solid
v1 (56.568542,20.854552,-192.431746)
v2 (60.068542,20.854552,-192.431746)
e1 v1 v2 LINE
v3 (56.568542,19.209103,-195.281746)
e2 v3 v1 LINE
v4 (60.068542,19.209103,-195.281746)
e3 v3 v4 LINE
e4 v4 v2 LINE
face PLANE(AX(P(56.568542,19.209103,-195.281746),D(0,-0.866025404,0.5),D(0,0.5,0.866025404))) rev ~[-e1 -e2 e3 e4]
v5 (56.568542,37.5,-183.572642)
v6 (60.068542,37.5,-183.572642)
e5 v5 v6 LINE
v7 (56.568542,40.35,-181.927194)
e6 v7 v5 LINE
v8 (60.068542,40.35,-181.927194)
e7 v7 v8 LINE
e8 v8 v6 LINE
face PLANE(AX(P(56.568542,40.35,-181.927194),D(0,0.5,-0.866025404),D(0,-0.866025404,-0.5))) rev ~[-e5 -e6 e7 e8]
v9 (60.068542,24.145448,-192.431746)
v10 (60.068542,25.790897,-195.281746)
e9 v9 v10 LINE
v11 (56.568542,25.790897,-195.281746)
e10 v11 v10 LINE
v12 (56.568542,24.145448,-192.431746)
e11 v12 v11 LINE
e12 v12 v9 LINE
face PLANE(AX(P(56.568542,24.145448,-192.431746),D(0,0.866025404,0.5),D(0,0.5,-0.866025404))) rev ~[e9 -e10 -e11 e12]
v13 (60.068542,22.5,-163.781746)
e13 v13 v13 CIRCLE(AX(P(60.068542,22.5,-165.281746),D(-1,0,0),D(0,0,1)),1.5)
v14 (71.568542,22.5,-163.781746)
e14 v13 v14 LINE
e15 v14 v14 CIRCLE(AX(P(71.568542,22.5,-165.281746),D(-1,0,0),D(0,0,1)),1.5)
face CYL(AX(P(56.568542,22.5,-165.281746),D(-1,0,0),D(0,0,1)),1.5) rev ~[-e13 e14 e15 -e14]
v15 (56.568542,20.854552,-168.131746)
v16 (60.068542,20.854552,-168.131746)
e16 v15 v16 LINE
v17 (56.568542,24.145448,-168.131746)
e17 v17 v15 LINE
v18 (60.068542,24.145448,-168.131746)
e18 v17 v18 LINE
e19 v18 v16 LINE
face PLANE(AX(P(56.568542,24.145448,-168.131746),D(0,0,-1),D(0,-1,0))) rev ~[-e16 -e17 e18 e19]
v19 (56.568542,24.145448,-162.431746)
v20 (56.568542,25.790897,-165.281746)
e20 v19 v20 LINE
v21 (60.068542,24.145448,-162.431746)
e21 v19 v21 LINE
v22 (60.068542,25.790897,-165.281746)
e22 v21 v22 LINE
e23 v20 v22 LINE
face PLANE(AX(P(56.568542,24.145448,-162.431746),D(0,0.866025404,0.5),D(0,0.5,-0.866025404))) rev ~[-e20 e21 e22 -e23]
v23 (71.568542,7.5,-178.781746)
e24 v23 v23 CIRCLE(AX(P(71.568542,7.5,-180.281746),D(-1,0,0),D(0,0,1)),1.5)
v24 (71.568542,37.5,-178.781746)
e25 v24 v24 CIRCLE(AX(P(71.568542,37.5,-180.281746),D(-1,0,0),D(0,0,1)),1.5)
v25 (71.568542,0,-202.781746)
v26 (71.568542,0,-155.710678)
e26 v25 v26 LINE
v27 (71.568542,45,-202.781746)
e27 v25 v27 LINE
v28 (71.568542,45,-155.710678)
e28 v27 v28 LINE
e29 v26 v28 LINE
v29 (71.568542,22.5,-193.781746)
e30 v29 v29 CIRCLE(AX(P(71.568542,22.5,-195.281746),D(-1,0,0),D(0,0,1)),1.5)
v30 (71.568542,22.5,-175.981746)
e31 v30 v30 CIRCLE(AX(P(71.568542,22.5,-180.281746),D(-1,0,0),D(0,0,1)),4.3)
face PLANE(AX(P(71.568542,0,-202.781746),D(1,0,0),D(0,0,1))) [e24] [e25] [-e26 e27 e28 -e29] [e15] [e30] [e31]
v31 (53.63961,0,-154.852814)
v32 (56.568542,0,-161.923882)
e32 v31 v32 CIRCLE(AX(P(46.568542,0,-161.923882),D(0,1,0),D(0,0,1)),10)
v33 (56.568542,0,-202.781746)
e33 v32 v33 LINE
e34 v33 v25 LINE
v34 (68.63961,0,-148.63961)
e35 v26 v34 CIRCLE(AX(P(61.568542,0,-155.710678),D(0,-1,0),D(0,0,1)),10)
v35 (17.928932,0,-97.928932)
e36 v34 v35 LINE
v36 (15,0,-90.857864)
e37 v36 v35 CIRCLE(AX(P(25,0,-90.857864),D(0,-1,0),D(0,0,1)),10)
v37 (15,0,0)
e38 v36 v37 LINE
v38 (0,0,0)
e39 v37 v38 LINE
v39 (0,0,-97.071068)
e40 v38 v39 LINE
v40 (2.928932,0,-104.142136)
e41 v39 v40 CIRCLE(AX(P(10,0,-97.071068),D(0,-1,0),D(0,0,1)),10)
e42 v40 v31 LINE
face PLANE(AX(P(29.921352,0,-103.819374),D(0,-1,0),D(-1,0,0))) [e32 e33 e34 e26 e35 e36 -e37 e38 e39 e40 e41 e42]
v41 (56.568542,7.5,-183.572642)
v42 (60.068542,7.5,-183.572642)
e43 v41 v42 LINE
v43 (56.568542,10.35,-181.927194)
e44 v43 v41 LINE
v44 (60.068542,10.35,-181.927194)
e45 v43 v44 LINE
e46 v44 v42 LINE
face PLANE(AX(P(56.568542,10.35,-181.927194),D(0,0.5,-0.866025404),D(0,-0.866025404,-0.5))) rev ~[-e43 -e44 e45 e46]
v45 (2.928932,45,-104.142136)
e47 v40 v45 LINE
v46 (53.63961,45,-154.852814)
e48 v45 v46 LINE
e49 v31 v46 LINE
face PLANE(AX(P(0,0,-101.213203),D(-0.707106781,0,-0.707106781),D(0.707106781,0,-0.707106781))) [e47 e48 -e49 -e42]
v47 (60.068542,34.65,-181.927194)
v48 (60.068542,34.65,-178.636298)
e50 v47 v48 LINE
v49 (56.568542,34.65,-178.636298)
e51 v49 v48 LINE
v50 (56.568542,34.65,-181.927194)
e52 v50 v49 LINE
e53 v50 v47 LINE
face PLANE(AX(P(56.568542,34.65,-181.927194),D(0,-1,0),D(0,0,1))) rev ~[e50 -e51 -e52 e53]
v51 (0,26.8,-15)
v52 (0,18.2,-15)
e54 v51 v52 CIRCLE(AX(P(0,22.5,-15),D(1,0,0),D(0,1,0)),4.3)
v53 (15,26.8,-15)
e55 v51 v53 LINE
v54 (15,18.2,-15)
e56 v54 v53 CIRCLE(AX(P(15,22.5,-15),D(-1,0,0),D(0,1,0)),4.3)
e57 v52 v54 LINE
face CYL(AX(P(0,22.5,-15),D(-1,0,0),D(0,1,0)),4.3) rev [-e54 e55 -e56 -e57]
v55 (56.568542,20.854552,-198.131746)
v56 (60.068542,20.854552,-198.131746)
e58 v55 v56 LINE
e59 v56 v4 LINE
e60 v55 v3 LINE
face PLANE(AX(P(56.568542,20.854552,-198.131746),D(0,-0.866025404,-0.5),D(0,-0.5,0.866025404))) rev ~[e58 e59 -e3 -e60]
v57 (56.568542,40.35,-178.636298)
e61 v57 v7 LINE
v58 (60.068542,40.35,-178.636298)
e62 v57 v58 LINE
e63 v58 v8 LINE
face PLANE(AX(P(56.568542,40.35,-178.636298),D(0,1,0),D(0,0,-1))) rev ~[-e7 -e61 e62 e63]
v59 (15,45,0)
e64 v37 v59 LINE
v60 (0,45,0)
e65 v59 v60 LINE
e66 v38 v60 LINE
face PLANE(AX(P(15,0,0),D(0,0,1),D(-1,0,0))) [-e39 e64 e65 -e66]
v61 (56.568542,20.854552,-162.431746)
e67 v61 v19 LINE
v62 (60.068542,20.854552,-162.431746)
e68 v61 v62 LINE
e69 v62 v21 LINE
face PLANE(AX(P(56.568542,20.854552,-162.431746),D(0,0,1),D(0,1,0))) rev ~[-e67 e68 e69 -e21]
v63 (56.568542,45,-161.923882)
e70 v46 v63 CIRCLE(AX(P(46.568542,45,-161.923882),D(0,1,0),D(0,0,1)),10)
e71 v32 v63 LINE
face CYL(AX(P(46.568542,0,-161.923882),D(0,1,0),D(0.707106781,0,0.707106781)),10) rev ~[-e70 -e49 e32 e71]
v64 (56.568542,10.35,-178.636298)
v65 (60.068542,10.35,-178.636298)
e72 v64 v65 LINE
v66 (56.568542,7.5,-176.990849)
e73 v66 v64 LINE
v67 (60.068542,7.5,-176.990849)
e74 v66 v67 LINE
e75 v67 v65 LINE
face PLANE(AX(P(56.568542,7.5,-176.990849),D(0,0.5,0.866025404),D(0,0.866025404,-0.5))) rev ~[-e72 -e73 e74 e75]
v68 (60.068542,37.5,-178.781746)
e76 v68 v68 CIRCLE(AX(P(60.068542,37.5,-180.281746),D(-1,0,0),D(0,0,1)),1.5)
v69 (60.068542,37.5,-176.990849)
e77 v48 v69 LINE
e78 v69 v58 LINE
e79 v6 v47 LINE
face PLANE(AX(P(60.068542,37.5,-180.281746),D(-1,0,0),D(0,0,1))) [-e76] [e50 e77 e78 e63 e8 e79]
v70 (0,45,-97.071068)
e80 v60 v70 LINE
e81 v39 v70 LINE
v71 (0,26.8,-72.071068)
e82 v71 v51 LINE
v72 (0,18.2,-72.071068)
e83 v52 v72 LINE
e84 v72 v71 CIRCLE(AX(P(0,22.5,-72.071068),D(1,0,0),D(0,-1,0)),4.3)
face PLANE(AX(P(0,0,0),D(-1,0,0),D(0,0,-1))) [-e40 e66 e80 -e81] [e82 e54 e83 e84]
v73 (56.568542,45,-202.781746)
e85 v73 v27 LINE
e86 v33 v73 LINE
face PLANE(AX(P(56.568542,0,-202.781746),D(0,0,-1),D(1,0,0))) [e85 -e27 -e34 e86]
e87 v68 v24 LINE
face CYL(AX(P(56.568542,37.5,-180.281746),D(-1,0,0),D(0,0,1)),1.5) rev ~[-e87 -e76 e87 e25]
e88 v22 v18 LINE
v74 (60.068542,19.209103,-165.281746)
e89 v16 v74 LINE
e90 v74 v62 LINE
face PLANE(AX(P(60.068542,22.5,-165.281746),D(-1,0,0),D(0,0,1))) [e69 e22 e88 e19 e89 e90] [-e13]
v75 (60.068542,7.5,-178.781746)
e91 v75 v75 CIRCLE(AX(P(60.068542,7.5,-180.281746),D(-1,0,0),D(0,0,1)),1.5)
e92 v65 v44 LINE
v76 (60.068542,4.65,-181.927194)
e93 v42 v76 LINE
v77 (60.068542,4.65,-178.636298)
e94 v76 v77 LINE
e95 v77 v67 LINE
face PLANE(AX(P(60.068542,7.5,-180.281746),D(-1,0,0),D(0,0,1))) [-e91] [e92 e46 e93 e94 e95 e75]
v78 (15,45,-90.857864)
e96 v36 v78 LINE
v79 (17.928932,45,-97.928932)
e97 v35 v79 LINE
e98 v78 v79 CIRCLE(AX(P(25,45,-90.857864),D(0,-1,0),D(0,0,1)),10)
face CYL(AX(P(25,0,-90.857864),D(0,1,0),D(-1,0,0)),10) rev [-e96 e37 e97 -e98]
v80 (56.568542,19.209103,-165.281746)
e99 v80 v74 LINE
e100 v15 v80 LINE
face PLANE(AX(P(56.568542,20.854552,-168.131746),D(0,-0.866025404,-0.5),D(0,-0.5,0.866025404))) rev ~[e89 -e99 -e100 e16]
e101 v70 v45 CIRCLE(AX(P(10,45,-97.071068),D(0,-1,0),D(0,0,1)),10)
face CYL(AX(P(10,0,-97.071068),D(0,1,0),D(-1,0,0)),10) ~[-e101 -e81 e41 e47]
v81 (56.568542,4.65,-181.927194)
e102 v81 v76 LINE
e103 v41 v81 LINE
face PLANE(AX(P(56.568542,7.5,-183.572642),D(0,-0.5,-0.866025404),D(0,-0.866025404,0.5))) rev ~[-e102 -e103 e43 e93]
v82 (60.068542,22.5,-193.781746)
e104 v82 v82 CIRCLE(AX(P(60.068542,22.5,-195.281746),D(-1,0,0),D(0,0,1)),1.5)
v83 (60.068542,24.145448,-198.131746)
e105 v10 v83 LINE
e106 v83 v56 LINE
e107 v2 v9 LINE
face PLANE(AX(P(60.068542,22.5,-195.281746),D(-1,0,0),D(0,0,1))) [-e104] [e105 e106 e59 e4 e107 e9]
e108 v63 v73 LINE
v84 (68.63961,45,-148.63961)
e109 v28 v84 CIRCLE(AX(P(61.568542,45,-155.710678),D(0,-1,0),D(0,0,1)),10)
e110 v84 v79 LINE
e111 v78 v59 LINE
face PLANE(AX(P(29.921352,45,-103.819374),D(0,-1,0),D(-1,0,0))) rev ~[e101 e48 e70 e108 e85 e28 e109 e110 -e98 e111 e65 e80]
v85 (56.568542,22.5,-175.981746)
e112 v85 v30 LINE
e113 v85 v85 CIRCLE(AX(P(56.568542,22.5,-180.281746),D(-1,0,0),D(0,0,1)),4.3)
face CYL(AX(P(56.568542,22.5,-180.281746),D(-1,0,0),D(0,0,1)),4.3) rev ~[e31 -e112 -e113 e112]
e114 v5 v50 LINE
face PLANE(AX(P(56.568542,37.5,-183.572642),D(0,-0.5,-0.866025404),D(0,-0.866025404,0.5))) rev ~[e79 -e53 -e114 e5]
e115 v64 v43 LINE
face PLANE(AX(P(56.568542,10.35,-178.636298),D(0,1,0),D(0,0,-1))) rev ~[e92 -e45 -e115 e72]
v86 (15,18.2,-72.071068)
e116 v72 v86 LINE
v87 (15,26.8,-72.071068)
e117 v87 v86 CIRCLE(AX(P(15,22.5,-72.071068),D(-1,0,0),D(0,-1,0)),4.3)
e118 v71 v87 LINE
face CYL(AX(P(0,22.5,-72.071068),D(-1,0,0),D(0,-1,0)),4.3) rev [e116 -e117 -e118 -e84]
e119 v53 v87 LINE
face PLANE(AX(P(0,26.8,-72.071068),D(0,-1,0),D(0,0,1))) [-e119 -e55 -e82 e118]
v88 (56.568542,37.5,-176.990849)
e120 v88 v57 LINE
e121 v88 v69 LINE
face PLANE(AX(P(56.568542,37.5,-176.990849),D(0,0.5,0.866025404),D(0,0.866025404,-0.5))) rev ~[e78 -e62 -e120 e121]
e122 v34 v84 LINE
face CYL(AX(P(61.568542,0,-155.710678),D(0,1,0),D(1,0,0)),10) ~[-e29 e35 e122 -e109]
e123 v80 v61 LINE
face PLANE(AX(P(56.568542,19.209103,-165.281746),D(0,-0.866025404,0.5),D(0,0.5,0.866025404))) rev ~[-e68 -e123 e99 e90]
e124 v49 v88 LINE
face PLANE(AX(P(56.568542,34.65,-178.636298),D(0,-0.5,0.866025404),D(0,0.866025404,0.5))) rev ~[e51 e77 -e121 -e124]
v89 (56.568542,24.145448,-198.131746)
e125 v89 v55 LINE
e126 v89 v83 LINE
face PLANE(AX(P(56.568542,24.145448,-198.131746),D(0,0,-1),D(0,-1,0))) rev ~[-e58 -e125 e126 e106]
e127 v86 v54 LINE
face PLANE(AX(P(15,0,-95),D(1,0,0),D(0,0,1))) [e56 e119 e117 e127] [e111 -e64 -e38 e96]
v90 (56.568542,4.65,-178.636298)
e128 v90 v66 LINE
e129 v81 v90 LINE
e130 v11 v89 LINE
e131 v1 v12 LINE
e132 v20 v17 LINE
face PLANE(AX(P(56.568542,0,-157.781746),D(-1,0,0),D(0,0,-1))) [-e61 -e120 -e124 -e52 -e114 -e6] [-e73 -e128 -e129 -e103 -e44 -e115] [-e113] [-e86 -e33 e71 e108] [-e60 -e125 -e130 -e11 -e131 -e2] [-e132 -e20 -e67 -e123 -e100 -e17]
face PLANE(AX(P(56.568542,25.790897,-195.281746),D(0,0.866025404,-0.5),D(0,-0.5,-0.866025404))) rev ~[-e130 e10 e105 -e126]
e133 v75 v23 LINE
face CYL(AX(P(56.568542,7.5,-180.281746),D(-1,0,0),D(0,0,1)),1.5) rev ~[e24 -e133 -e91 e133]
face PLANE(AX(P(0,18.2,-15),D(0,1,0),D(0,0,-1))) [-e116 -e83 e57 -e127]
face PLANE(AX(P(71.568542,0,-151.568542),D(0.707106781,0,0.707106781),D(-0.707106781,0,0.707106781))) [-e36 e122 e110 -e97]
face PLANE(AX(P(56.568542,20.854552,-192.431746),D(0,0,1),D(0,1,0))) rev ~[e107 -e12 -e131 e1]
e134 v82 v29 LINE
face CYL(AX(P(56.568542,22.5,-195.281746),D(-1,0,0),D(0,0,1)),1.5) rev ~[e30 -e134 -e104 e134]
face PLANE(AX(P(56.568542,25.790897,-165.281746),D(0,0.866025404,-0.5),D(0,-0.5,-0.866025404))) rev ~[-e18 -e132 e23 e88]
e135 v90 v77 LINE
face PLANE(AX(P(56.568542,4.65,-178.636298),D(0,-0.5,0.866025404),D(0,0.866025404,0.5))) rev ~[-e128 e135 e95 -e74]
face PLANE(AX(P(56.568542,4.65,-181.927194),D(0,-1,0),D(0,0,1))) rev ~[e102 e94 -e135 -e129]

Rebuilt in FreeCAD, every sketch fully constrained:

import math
import FreeCAD as App
import Part
import Sketcher
from FreeCAD import Vector
Q = App.Units.Quantity


def edges_at(feature, points):
    """Names of the edges that pass closest to the given points."""
    edges = feature.Shape.Edges
    near = lambda p: min(range(len(edges)), key=lambda i: edges[i].distToShape(Part.Vertex(*p))[0])
    return sorted({f"Edge{near(p) + 1}" for p in points})


def add_polygon(sketch, points):
    """Adds a closed chain of lines whose ends are joined by coincident constraints."""
    first, n = sketch.GeometryCount, len(points)
    for a, b in zip(points, points[1:] + points[:1]):
        sketch.addGeometry(Part.LineSegment(App.Vector(*a, 0), App.Vector(*b, 0)), False)
    for i in range(n):
        sketch.addConstraint(Sketcher.Constraint("Coincident", first + i, 2, first + (i + 1) % n, 1))

doc = App.newDocument("Part")
body = doc.addObject("PartDesign::Body", "Body")

sketch1 = body.newObject("Sketcher::SketchObject", "Sketch")
sketch1.AttachmentSupport = (doc.getObject("XZ_Plane"), [""])
sketch1.MapMode = "FlatFace"
add_polygon(sketch1, [(0, -101), (0, 0), (15, 0), (15, -95), (72, -152), (72, -203), (57, -203), (57, -158)])
sketch1.addConstraint(Sketcher.Constraint("Vertical", 0))
sketch1.addConstraint(Sketcher.Constraint("Horizontal", 1))
sketch1.addConstraint(Sketcher.Constraint("Vertical", 2))
sketch1.addConstraint(Sketcher.Constraint("Vertical", 4))
sketch1.addConstraint(Sketcher.Constraint("Horizontal", 5))
sketch1.addConstraint(Sketcher.Constraint("Vertical", 6))
sketch1.addConstraint(Sketcher.Constraint("Coincident", 0, 2, -1, 1))
sketch1.addConstraint(Sketcher.Constraint("Parallel", 3, 7))
sketch1.addConstraint(Sketcher.Constraint("Equal", 1, 5))
sketch1.addConstraint(Sketcher.Constraint("DistanceX", 1, 1, 1, 2, Q("15 mm")))
sketch1.addConstraint(Sketcher.Constraint("DistanceY", 2, 2, 2, 1, Q("95 mm")))
sketch1.addConstraint(Sketcher.Constraint("DistanceY", 6, 1, 6, 2, Q("45 mm")))
sketch1.addConstraint(Sketcher.Constraint("Angle", 3, Q("-45 deg")))
sketch1.addConstraint(Sketcher.Constraint("Distance", 3, Q("80 mm")))
sketch1.addConstraint(Sketcher.Constraint("DistanceY", 0, 1, 0, 2, Q("101.213203 mm")))
pad1 = body.newObject("PartDesign::Pad", "Pad")
pad1.Profile = sketch1
pad1.Length = 45
pad1.Reversed = True

sketch2 = body.newObject("Sketcher::SketchObject", "Sketch001")
sketch2.AttachmentSupport = (doc.getObject("YZ_Plane"), [""])
sketch2.MapMode = "FlatFace"
sketch2.AttachmentOffset = App.Placement(Vector(0, 0, 56.568542), App.Rotation())
sketch2.addGeometry(Part.Circle(Vector(22.5, -180.3, 0), Vector(0, 0, 1), 4.3), False)
sketch2.addConstraint(Sketcher.Constraint("Diameter", 0, Q("8.6 mm")))
sketch2.addConstraint(Sketcher.Constraint("DistanceX", -1, 1, 0, 3, Q("22.5 mm")))
sketch2.addConstraint(Sketcher.Constraint("DistanceY", 0, 3, -1, 1, Q("180.281746 mm")))
pocket1 = body.newObject("PartDesign::Pocket", "Pocket")
pocket1.Profile = sketch2
pocket1.Type = "UpToFirst"
pocket1.Reversed = True

sketch3 = body.newObject("Sketcher::SketchObject", "Sketch002")
sketch3.AttachmentSupport = (doc.getObject("YZ_Plane"), [""])
sketch3.MapMode = "FlatFace"
sketch3.AttachmentOffset = App.Placement(Vector(0, 0, 56.568542), App.Rotation())
sketch3.addGeometry(Part.Circle(Vector(37.5, -180.3, 0), Vector(0, 0, 1), 1.5), False)
sketch3.addConstraint(Sketcher.Constraint("Diameter", 0, Q("3 mm")))
sketch3.addConstraint(Sketcher.Constraint("DistanceX", -1, 1, 0, 3, Q("37.5 mm")))
sketch3.addConstraint(Sketcher.Constraint("DistanceY", 0, 3, -1, 1, Q("180.281746 mm")))
pocket2 = body.newObject("PartDesign::Pocket", "Pocket001")
pocket2.Profile = sketch3
pocket2.Type = "UpToFirst"
pocket2.Reversed = True

sketch4 = body.newObject("Sketcher::SketchObject", "Sketch003")
sketch4.AttachmentSupport = (doc.getObject("YZ_Plane"), [""])
sketch4.MapMode = "FlatFace"
sketch4.AttachmentOffset = App.Placement(Vector(0, 0, 56.568542), App.Rotation())
sketch4.addGeometry(Part.Circle(Vector(22.5, -165.3, 0), Vector(0, 0, 1), 1.5), False)
sketch4.addConstraint(Sketcher.Constraint("Diameter", 0, Q("3 mm")))
sketch4.addConstraint(Sketcher.Constraint("DistanceX", -1, 1, 0, 3, Q("22.5 mm")))
sketch4.addConstraint(Sketcher.Constraint("DistanceY", 0, 3, -1, 1, Q("165.281746 mm")))
pocket3 = body.newObject("PartDesign::Pocket", "Pocket002")
pocket3.Profile = sketch4
pocket3.Type = "UpToFirst"
pocket3.Reversed = True

sketch5 = body.newObject("Sketcher::SketchObject", "Sketch004")
sketch5.AttachmentSupport = (doc.getObject("YZ_Plane"), [""])
sketch5.MapMode = "FlatFace"
sketch5.AttachmentOffset = App.Placement(Vector(0, 0, 56.568542), App.Rotation())
sketch5.addGeometry(Part.Circle(Vector(7.5, -180.3, 0), Vector(0, 0, 1), 1.5), False)
sketch5.addConstraint(Sketcher.Constraint("Diameter", 0, Q("3 mm")))
sketch5.addConstraint(Sketcher.Constraint("DistanceX", -1, 1, 0, 3, Q("7.5 mm")))
sketch5.addConstraint(Sketcher.Constraint("DistanceY", 0, 3, -1, 1, Q("180.281746 mm")))
pocket4 = body.newObject("PartDesign::Pocket", "Pocket003")
pocket4.Profile = sketch5
pocket4.Type = "UpToFirst"
pocket4.Reversed = True

sketch6 = body.newObject("Sketcher::SketchObject", "Sketch005")
sketch6.AttachmentSupport = (doc.getObject("YZ_Plane"), [""])
sketch6.MapMode = "FlatFace"
sketch6.AttachmentOffset = App.Placement(Vector(0, 0, 56.568542), App.Rotation())
sketch6.addGeometry(Part.Circle(Vector(22.5, -195.3, 0), Vector(0, 0, 1), 1.5), False)
sketch6.addConstraint(Sketcher.Constraint("Diameter", 0, Q("3 mm")))
sketch6.addConstraint(Sketcher.Constraint("DistanceX", -1, 1, 0, 3, Q("22.5 mm")))
sketch6.addConstraint(Sketcher.Constraint("DistanceY", 0, 3, -1, 1, Q("195.281746 mm")))
pocket5 = body.newObject("PartDesign::Pocket", "Pocket004")
pocket5.Profile = sketch6
pocket5.Type = "UpToFirst"
pocket5.Reversed = True

sketch7 = body.newObject("Sketcher::SketchObject", "Sketch006")
sketch7.AttachmentSupport = (doc.getObject("YZ_Plane"), [""])
sketch7.MapMode = "FlatFace"
sketch7.AttachmentOffset = App.Placement(Vector(0, 0, 56.568542), App.Rotation())
add_polygon(sketch7, [(20.9, -162.4), (24.1, -162.4), (25.8, -165.3), (24.1, -168.1), (20.9, -168.1), (19.2, -165.3)])
add_polygon(sketch7, [(40.4, -178.6), (40.4, -181.9), (37.5, -183.6), (34.6, -181.9), (34.6, -178.6), (37.5, -177)])
add_polygon(sketch7, [(4.7, -181.9), (4.7, -178.6), (7.5, -177), (10.3, -178.6), (10.3, -181.9), (7.5, -183.6)])
add_polygon(sketch7, [(24.1, -198.1), (20.9, -198.1), (19.2, -195.3), (20.9, -192.4), (24.1, -192.4), (25.8, -195.3)])
sketch7.addConstraint(Sketcher.Constraint("Horizontal", 0))
sketch7.addConstraint(Sketcher.Constraint("Horizontal", 3))
sketch7.addConstraint(Sketcher.Constraint("Vertical", 6))
sketch7.addConstraint(Sketcher.Constraint("Vertical", 9))
sketch7.addConstraint(Sketcher.Constraint("Vertical", 12))
sketch7.addConstraint(Sketcher.Constraint("Vertical", 15))
sketch7.addConstraint(Sketcher.Constraint("Horizontal", 18))
sketch7.addConstraint(Sketcher.Constraint("Horizontal", 21))
sketch7.addConstraint(Sketcher.Constraint("Parallel", 1, 4))
sketch7.addConstraint(Sketcher.Constraint("Parallel", 2, 5))
sketch7.addConstraint(Sketcher.Constraint("Perpendicular", 4, 7))
sketch7.addConstraint(Sketcher.Constraint("Perpendicular", 5, 8))
sketch7.addConstraint(Sketcher.Constraint("Parallel", 7, 10))
sketch7.addConstraint(Sketcher.Constraint("Parallel", 8, 11))
sketch7.addConstraint(Sketcher.Constraint("Parallel", 10, 13))
sketch7.addConstraint(Sketcher.Constraint("Parallel", 11, 14))
sketch7.addConstraint(Sketcher.Constraint("Parallel", 13, 16))
sketch7.addConstraint(Sketcher.Constraint("Parallel", 14, 17))
sketch7.addConstraint(Sketcher.Constraint("Perpendicular", 16, 19))
sketch7.addConstraint(Sketcher.Constraint("Perpendicular", 17, 20))
sketch7.addConstraint(Sketcher.Constraint("Parallel", 19, 22))
sketch7.addConstraint(Sketcher.Constraint("Parallel", 20, 23))
sketch7.addConstraint(Sketcher.Constraint("Horizontal", 1, 2, 4, 2))
sketch7.addConstraint(Sketcher.Constraint("Horizontal", 6, 2, 8, 2))
sketch7.addConstraint(Sketcher.Constraint("Horizontal", 9, 2, 11, 2))
sketch7.addConstraint(Sketcher.Constraint("Horizontal", 11, 2, 12, 2))
sketch7.addConstraint(Sketcher.Constraint("Horizontal", 10, 2, 13, 2))
sketch7.addConstraint(Sketcher.Constraint("Horizontal", 12, 2, 14, 2))
sketch7.addConstraint(Sketcher.Constraint("Horizontal", 8, 2, 15, 2))
sketch7.addConstraint(Sketcher.Constraint("Horizontal", 7, 2, 16, 2))
sketch7.addConstraint(Sketcher.Constraint("Horizontal", 19, 2, 22, 2))
sketch7.addConstraint(Sketcher.Constraint("Vertical", 0, 2, 2, 2))
sketch7.addConstraint(Sketcher.Constraint("Vertical", 3, 2, 5, 2))
sketch7.addConstraint(Sketcher.Constraint("Vertical", 5, 2, 18, 2))
sketch7.addConstraint(Sketcher.Constraint("Vertical", 4, 2, 19, 2))
sketch7.addConstraint(Sketcher.Constraint("Vertical", 18, 2, 20, 2))
sketch7.addConstraint(Sketcher.Constraint("Vertical", 2, 2, 21, 2))
sketch7.addConstraint(Sketcher.Constraint("Equal", 21, 6))
sketch7.addConstraint(Sketcher.Constraint("Equal", 5, 7))
sketch7.addConstraint(Sketcher.Constraint("Angle", 1, Q("-60 deg")))
sketch7.addConstraint(Sketcher.Constraint("DistanceX", -1, 1, 7, 2, Q("37.5 mm")))
sketch7.addConstraint(Sketcher.Constraint("DistanceX", -1, 1, 13, 2, Q("7.5 mm")))
sketch7.addConstraint(Sketcher.Constraint("DistanceY", 2, 2, 0, 2, Q("5.7 mm")))
sketch7.addConstraint(Sketcher.Constraint("DistanceX", 0, 1, 0, 2, Q("3.290897 mm")))
sketch7.addConstraint(Sketcher.Constraint("DistanceX", -1, 1, 0, 2, Q("24.145448 mm")))
sketch7.addConstraint(Sketcher.Constraint("DistanceY", 10, 2, -1, 1, Q("176.990849 mm")))
sketch7.addConstraint(Sketcher.Constraint("DistanceY", 6, 2, 2, 2, Q("13.795448 mm")))
sketch7.addConstraint(Sketcher.Constraint("DistanceY", 18, 2, 15, 2, Q("16.204552 mm")))
pocket6 = body.newObject("PartDesign::Pocket", "Pocket005")
pocket6.Profile = sketch7
pocket6.Length = 3.5
pocket6.Reversed = True
doc.recompute()

fillet = body.newObject("PartDesign::Fillet", "Fillet")
fillet.Base = (pocket6, edges_at(pocket6, [
    (0, 22.5, -101.213),
    (56.569, 22.5, -157.782),
    (71.569, 22.5, -151.569),
    (15, 22.5, -95),
]))
fillet.Radius = 10

sketch8 = body.newObject("Sketcher::SketchObject", "Sketch007")
sketch8.AttachmentSupport = (doc.getObject("YZ_Plane"), [""])
sketch8.MapMode = "FlatFace"
sketch8.addGeometry(Part.LineSegment(Vector(26.8, -15, 0), Vector(26.8, -72.1, 0)), False)
sketch8.addGeometry(Part.ArcOfCircle(Part.Circle(Vector(22.5, -72.1, 0), Vector(0, 0, 1), 4.3), math.radians(180), math.radians(360)), False)
sketch8.addGeometry(Part.LineSegment(Vector(18.2, -72.1, 0), Vector(18.2, -15, 0)), False)
sketch8.addGeometry(Part.ArcOfCircle(Part.Circle(Vector(22.5, -15, 0), Vector(0, 0, 1), 4.3), math.radians(0), math.radians(180)), False)
sketch8.addConstraint(Sketcher.Constraint("Tangent", 0, 2, 1, 2))
sketch8.addConstraint(Sketcher.Constraint("Tangent", 1, 1, 2, 1))
sketch8.addConstraint(Sketcher.Constraint("Tangent", 2, 2, 3, 2))
sketch8.addConstraint(Sketcher.Constraint("Tangent", 3, 1, 0, 1))
sketch8.addConstraint(Sketcher.Constraint("Vertical", 0))
sketch8.addConstraint(Sketcher.Constraint("Vertical", 2))
sketch8.addConstraint(Sketcher.Constraint("Radius", 1, Q("4.3 mm")))
sketch8.addConstraint(Sketcher.Constraint("DistanceY", 3, 3, -1, 1, Q("15 mm")))
sketch8.addConstraint(Sketcher.Constraint("DistanceX", -1, 1, 1, 3, Q("22.5 mm")))
sketch8.addConstraint(Sketcher.Constraint("DistanceY", 0, 2, 0, 1, Q("57.071068 mm")))
pocket7 = body.newObject("PartDesign::Pocket", "Pocket006")
pocket7.Profile = sketch8
pocket7.Type = "ThroughAll"
pocket7.Reversed = True

doc.recompute()
